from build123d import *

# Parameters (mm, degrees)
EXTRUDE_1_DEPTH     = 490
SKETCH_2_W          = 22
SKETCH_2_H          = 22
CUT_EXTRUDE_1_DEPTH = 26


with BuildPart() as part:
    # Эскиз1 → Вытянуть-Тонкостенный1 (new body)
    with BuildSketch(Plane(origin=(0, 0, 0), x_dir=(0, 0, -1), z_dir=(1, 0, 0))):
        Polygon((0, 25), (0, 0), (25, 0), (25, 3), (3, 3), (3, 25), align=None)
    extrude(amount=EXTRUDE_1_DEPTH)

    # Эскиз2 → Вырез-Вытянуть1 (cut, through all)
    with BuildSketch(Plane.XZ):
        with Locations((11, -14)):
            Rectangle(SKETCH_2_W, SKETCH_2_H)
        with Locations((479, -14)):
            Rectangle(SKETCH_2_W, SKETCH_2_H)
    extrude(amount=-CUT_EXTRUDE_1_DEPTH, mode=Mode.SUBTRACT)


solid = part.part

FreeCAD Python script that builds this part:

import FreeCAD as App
import Part
import Sketcher
from FreeCAD import Vector
Q = App.Units.Quantity


def add_polygon(sketch, points):
    """Adds a closed chain of lines whose ends are joined by coincident constraints."""
    first, n = sketch.GeometryCount, len(points)
    for a, b in zip(points, points[1:] + points[:1]):
        sketch.addGeometry(Part.LineSegment(App.Vector(*a, 0), App.Vector(*b, 0)), False)
    for i in range(n):
        sketch.addConstraint(Sketcher.Constraint("Coincident", first + i, 2, first + (i + 1) % n, 1))

doc = App.newDocument("Part")
body = doc.addObject("PartDesign::Body", "Body")

# Sketch on YZ plane
sketch1 = body.newObject("Sketcher::SketchObject", "Sketch")
sketch1.AttachmentSupport = (doc.getObject("YZ_Plane"), [""])
sketch1.MapMode = "FlatFace"
add_polygon(sketch1, [(25, 0), (0, 0), (0, -25), (3, -25), (3, -3), (25, -3)])  # lines 0-5
sketch1.addConstraint(Sketcher.Constraint("Horizontal", 0))
sketch1.addConstraint(Sketcher.Constraint("Vertical", 1))
sketch1.addConstraint(Sketcher.Constraint("Horizontal", 2))
sketch1.addConstraint(Sketcher.Constraint("Vertical", 3))
sketch1.addConstraint(Sketcher.Constraint("Horizontal", 4))
sketch1.addConstraint(Sketcher.Constraint("Vertical", 5))
sketch1.addConstraint(Sketcher.Constraint("Coincident", 0, 2, -1, 1))
sketch1.addConstraint(Sketcher.Constraint("Equal", 0, 1))
sketch1.addConstraint(Sketcher.Constraint("Equal", 4, 3))
sketch1.addConstraint(Sketcher.Constraint("DistanceX", 0, 2, 0, 1, Q("25 mm")))
sketch1.addConstraint(Sketcher.Constraint("DistanceX", 2, 1, 2, 2, Q("3 mm")))
pad1 = body.newObject("PartDesign::Pad", "Pad")
pad1.Profile = sketch1
pad1.Length = 490

# Sketch on XZ plane
sketch2 = body.newObject("Sketcher::SketchObject", "Sketch001")
sketch2.AttachmentSupport = (doc.getObject("XZ_Plane"), [""])
sketch2.MapMode = "FlatFace"
add_polygon(sketch2, [(0, -3), (0, -25), (22, -25), (22, -3)])  # lines 0-3
add_polygon(sketch2, [(468, -3), (468, -25), (490, -25), (490, -3)])  # lines 4-7
sketch2.addConstraint(Sketcher.Constraint("Vertical", 0))
sketch2.addConstraint(Sketcher.Constraint("Horizontal", 1))
sketch2.addConstraint(Sketcher.Constraint("Vertical", 2))
sketch2.addConstraint(Sketcher.Constraint("Horizontal", 3))
sketch2.addConstraint(Sketcher.Constraint("Vertical", 4))
sketch2.addConstraint(Sketcher.Constraint("Horizontal", 5))
sketch2.addConstraint(Sketcher.Constraint("Vertical", 6))
sketch2.addConstraint(Sketcher.Constraint("Horizontal", 7))
sketch2.addConstraint(Sketcher.Constraint("PointOnObject", 0, 2, -2))
sketch2.addConstraint(Sketcher.Constraint("Horizontal", 1, 2, 4, 2))
sketch2.addConstraint(Sketcher.Constraint("Horizontal", 3, 2, 6, 2))
sketch2.addConstraint(Sketcher.Constraint("Equal", 3, 5))
sketch2.addConstraint(Sketcher.Constraint("Equal", 7, 0))
sketch2.addConstraint(Sketcher.Constraint("DistanceX", 1, 1, 1, 2, Q("22 mm")))
sketch2.addConstraint(Sketcher.Constraint("DistanceY", 0, 2, -1, 1, Q("25 mm")))
sketch2.addConstraint(Sketcher.Constraint("DistanceX", -1, 1, 4, 2, Q("468 mm")))
pocket1 = body.newObject("PartDesign::Pocket", "Pocket")
pocket1.Profile = sketch2
pocket1.Type = "ThroughAll"

doc.recompute()
